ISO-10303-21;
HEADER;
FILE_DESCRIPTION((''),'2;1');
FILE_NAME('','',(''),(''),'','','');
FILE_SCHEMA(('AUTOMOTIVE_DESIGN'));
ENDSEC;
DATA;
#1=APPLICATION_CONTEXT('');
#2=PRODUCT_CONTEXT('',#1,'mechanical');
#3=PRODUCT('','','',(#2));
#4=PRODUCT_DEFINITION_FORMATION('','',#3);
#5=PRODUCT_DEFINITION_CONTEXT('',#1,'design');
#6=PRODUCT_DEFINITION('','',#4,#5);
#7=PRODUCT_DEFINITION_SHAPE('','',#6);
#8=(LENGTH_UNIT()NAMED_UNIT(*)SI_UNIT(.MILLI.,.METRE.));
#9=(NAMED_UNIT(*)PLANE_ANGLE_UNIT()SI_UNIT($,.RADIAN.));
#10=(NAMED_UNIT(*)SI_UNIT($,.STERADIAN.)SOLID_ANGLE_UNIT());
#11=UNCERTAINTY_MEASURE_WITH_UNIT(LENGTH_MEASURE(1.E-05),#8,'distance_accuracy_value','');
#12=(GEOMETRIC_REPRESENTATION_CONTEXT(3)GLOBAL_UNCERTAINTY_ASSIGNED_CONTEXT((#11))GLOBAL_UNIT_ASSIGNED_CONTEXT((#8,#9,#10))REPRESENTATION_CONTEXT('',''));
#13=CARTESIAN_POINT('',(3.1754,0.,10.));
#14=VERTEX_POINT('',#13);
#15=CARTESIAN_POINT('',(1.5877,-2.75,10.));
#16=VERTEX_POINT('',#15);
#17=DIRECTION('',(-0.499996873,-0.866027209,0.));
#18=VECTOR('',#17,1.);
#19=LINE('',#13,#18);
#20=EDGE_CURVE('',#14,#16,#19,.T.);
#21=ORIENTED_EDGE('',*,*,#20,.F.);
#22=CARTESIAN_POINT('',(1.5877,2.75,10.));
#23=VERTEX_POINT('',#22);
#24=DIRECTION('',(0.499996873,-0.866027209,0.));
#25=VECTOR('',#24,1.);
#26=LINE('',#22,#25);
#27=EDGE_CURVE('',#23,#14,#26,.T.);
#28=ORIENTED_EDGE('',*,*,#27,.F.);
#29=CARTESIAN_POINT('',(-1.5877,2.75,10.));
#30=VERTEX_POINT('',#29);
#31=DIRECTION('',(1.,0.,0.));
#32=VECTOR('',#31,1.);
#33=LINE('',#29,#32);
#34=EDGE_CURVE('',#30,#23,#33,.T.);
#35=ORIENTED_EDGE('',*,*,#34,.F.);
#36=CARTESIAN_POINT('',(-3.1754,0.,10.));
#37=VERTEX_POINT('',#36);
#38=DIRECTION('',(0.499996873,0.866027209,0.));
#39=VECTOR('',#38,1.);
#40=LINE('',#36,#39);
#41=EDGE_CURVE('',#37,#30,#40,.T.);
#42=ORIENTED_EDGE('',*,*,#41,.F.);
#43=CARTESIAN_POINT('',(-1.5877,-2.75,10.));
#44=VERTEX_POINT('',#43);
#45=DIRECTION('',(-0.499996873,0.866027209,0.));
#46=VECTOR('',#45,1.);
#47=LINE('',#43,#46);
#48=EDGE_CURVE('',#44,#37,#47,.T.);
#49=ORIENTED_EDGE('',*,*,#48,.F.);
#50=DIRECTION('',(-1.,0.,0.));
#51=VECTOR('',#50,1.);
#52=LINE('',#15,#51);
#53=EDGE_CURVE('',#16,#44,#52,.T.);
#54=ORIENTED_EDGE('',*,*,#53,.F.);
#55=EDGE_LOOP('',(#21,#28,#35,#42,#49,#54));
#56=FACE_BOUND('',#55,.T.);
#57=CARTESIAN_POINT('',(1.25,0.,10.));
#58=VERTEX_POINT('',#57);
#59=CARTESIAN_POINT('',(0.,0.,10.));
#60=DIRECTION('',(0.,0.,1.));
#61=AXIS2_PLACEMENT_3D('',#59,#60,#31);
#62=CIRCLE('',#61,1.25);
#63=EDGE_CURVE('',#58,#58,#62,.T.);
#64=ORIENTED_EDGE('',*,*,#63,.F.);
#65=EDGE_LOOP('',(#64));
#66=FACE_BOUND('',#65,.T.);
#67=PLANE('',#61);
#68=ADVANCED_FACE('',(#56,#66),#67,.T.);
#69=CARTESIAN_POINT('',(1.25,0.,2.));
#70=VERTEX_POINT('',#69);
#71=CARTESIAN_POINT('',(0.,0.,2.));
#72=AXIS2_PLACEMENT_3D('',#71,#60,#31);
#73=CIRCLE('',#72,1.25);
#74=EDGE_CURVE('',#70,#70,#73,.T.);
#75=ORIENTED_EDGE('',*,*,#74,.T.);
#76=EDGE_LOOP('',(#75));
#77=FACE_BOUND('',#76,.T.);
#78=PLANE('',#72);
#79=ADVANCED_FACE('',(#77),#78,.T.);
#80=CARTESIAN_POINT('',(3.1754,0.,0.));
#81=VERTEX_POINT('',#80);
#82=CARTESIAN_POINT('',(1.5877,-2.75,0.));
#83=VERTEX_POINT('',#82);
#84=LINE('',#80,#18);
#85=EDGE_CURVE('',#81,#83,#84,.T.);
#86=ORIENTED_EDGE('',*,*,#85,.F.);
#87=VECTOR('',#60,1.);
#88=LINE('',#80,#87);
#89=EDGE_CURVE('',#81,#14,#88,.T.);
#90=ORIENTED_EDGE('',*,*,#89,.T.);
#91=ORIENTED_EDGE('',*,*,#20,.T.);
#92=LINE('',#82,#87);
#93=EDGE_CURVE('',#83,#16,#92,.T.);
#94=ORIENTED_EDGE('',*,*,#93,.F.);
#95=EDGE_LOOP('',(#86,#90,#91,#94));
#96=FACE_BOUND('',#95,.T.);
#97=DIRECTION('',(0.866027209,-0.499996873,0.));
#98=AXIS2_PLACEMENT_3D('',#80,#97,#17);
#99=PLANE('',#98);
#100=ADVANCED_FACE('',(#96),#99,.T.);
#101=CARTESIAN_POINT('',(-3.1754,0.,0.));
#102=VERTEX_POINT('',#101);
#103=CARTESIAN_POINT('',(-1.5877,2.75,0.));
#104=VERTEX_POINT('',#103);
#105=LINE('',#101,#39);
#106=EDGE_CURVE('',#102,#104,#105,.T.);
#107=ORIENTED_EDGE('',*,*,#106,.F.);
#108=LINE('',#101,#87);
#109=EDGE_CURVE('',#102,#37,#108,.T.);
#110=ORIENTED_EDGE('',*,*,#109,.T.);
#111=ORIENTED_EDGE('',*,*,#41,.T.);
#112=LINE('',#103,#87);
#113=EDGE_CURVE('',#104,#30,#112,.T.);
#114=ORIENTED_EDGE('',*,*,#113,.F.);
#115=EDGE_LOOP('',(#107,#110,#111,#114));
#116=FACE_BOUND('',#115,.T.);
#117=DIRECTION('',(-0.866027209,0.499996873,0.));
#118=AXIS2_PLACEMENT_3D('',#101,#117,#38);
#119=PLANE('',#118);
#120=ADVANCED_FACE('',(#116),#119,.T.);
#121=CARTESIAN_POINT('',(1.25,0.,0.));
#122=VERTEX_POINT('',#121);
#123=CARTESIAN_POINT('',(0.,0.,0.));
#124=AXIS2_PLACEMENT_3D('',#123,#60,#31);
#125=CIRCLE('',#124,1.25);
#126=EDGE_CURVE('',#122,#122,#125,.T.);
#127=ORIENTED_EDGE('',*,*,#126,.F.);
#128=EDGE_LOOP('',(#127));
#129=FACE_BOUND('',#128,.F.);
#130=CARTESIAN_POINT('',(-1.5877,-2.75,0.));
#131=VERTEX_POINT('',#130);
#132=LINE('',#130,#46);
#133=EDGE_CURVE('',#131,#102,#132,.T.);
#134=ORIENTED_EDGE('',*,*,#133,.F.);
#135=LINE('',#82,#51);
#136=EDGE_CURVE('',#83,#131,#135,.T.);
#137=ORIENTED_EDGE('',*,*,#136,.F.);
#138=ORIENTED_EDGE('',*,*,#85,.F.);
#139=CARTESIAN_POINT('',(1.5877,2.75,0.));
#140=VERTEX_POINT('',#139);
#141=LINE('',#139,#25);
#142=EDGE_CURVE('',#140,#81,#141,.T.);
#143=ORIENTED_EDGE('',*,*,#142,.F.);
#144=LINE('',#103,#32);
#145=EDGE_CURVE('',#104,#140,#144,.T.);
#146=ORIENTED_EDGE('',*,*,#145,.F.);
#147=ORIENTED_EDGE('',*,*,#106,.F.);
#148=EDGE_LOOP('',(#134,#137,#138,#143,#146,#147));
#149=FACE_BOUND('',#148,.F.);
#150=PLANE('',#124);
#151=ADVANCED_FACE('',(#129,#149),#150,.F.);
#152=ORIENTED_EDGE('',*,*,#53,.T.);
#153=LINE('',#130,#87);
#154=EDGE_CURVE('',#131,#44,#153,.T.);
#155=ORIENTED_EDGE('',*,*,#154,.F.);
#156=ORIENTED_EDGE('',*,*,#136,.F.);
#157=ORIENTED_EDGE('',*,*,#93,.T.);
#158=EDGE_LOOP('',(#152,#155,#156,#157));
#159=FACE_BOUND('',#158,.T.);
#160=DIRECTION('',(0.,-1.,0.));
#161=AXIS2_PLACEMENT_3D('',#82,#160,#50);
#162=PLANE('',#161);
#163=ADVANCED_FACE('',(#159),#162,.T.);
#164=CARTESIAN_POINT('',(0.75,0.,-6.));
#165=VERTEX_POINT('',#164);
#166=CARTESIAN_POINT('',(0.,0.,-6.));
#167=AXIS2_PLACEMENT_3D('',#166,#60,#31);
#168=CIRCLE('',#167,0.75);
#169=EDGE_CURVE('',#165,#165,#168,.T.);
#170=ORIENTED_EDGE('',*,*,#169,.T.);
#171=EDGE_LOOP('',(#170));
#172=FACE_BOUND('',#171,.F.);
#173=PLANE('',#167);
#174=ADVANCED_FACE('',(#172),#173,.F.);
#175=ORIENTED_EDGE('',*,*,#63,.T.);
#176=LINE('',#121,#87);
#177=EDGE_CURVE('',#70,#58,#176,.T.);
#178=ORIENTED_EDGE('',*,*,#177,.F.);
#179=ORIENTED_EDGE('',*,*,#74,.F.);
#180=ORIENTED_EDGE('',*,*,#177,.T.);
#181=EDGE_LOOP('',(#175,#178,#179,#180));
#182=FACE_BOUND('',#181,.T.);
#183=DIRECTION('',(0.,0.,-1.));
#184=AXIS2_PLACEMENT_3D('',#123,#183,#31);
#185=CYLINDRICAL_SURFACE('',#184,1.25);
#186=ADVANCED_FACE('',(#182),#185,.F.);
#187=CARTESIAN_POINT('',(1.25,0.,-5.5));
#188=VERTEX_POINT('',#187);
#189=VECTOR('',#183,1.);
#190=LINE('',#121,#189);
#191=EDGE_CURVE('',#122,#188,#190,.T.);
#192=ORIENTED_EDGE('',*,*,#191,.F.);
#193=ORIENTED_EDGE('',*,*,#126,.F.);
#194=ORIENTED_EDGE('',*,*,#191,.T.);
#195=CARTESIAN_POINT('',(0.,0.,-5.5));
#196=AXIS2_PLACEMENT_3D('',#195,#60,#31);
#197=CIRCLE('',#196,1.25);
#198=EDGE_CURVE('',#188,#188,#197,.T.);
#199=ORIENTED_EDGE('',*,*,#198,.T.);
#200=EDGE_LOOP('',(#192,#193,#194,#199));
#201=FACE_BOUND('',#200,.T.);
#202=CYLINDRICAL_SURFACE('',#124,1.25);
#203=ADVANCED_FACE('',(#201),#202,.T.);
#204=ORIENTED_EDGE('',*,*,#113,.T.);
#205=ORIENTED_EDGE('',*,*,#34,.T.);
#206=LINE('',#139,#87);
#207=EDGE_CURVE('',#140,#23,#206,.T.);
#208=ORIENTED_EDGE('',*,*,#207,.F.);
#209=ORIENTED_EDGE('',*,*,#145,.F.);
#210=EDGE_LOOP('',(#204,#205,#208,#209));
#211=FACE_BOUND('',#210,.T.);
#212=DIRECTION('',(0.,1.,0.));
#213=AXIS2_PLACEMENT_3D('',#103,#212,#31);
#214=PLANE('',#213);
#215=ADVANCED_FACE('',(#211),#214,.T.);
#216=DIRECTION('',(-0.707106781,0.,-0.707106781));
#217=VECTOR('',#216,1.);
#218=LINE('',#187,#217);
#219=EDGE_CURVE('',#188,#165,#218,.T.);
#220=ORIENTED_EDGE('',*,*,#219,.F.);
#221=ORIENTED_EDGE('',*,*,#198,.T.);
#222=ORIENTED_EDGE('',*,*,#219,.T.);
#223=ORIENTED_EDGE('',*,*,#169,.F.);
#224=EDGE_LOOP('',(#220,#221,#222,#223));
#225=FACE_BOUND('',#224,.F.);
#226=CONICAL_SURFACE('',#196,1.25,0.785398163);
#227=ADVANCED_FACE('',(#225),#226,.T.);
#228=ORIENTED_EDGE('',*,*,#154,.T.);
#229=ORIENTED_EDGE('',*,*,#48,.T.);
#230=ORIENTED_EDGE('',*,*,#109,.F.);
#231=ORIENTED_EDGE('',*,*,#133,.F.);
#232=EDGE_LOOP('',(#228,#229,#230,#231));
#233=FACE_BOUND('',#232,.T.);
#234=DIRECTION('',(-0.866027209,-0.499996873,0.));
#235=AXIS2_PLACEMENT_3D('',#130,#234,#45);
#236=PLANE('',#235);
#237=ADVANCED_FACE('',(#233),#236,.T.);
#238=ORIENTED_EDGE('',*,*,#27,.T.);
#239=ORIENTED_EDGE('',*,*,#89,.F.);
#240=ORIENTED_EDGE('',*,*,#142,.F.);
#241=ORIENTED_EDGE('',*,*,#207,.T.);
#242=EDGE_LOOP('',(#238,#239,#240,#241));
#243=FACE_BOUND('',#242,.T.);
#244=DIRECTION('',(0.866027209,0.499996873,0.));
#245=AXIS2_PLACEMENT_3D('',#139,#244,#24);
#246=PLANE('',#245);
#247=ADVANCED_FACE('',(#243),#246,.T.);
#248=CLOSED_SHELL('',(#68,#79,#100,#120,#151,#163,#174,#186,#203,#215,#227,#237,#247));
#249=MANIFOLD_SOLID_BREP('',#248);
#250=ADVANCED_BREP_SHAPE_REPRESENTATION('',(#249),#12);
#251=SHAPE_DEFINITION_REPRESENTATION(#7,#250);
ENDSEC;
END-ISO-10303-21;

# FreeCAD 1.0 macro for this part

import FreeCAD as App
import Part
import Sketcher
from FreeCAD import Vector
Q = App.Units.Quantity


def edges_at(feature, points):
    """Names of the edges that pass closest to the given points."""
    edges = feature.Shape.Edges
    near = lambda p: min(range(len(edges)), key=lambda i: edges[i].distToShape(Part.Vertex(*p))[0])
    return sorted({f"Edge{near(p) + 1}" for p in points})

doc = App.newDocument("Part")
body = doc.addObject("PartDesign::Body", "Body")

sketch1 = body.newObject("Sketcher::SketchObject", "Sketch")
sketch1.AttachmentSupport = (doc.getObject("XY_Plane"), [""])
sketch1.MapMode = "FlatFace"
sketch1.addGeometry([
    Part.LineSegment(Vector(3.1754, 0, 0), Vector(1.5877, 2.75, 0)),
    Part.LineSegment(Vector(1.5877, 2.75, 0), Vector(-1.5877, 2.75, 0)),
    Part.LineSegment(Vector(-1.5877, 2.75, 0), Vector(-3.1754, 0, 0)),
    Part.LineSegment(Vector(-3.1754, 0, 0), Vector(-1.5877, -2.75, 0)),
    Part.LineSegment(Vector(-1.5877, -2.75, 0), Vector(1.5877, -2.75, 0)),
    Part.LineSegment(Vector(1.5877, -2.75, 0), Vector(3.1754, 0, 0)),
    Part.Circle(Vector(0, 0, 0), Vector(0, 0, 1), 1.25),
], False)
sketch1.addConstraint([
    Sketcher.Constraint("Coincident", 0, 2, 1, 1),
    Sketcher.Constraint("Coincident", 1, 2, 2, 1),
    Sketcher.Constraint("Coincident", 2, 2, 3, 1),
    Sketcher.Constraint("Coincident", 3, 2, 4, 1),
    Sketcher.Constraint("Coincident", 4, 2, 5, 1),
    Sketcher.Constraint("Coincident", 5, 2, 0, 1),
    Sketcher.Constraint("Horizontal", 1),
    Sketcher.Constraint("Horizontal", 4),
    Sketcher.Constraint("Coincident", 6, 3, -1, 1),
    Sketcher.Constraint("Symmetric", 0, 2, 3, 2, -1, 1),
    Sketcher.Constraint("Symmetric", 2, 2, 5, 2, -1, 1),
    Sketcher.Constraint("PointOnObject", 2, 2, -1),
    Sketcher.Constraint("Parallel", 2, 5),
    Sketcher.Constraint("Vertical", 1, 2, 3, 2),
    Sketcher.Constraint("Diameter", 6, Q("2.5 mm")),
    Sketcher.Constraint("DistanceY", 3, 2, 1, 2, Q("5.5 mm")),
    Sketcher.Constraint("Angle", 0, Q("119.9998 deg")),
    Sketcher.Constraint("DistanceX", 1, 2, 1, 1, Q("3.1754 mm")),
])
pad1 = body.newObject("PartDesign::Pad", "Pad")
pad1.Profile = sketch1
pad1.Length = 10

sketch2 = body.newObject("Sketcher::SketchObject", "Sketch001")
sketch2.AttachmentSupport = (doc.getObject("XY_Plane"), [""])
sketch2.MapMode = "FlatFace"
sketch2.addGeometry(Part.Circle(Vector(0, 0, 0), Vector(0, 0, 1), 1.25), False)
sketch2.addConstraint([
    Sketcher.Constraint("Coincident", 0, 3, -1, 1),
    Sketcher.Constraint("Diameter", 0, Q("2.5 mm")),
])
pad2 = body.newObject("PartDesign::Pad", "Pad001")
pad2.Profile = sketch2
pad2.Length = 2

sketch3 = body.newObject("Sketcher::SketchObject", "Sketch002")
sketch3.AttachmentSupport = (doc.getObject("XY_Plane"), [""])
sketch3.MapMode = "FlatFace"
sketch3.addGeometry(Part.Circle(Vector(0, 0, 0), Vector(0, 0, 1), 1.25), False)
sketch3.addConstraint([
    Sketcher.Constraint("Coincident", 0, 3, -1, 1),
    Sketcher.Constraint("Diameter", 0, Q("2.5 mm")),
])
pad3 = body.newObject("PartDesign::Pad", "Pad002")
pad3.Profile = sketch3
pad3.Length = 6
pad3.Reversed = True
doc.recompute()

chamfer = body.newObject("PartDesign::Chamfer", "Chamfer")
chamfer.Base = (pad3, edges_at(pad3, [(-1.25, 0, -6)]))
chamfer.Size = 0.5

doc.recompute()
